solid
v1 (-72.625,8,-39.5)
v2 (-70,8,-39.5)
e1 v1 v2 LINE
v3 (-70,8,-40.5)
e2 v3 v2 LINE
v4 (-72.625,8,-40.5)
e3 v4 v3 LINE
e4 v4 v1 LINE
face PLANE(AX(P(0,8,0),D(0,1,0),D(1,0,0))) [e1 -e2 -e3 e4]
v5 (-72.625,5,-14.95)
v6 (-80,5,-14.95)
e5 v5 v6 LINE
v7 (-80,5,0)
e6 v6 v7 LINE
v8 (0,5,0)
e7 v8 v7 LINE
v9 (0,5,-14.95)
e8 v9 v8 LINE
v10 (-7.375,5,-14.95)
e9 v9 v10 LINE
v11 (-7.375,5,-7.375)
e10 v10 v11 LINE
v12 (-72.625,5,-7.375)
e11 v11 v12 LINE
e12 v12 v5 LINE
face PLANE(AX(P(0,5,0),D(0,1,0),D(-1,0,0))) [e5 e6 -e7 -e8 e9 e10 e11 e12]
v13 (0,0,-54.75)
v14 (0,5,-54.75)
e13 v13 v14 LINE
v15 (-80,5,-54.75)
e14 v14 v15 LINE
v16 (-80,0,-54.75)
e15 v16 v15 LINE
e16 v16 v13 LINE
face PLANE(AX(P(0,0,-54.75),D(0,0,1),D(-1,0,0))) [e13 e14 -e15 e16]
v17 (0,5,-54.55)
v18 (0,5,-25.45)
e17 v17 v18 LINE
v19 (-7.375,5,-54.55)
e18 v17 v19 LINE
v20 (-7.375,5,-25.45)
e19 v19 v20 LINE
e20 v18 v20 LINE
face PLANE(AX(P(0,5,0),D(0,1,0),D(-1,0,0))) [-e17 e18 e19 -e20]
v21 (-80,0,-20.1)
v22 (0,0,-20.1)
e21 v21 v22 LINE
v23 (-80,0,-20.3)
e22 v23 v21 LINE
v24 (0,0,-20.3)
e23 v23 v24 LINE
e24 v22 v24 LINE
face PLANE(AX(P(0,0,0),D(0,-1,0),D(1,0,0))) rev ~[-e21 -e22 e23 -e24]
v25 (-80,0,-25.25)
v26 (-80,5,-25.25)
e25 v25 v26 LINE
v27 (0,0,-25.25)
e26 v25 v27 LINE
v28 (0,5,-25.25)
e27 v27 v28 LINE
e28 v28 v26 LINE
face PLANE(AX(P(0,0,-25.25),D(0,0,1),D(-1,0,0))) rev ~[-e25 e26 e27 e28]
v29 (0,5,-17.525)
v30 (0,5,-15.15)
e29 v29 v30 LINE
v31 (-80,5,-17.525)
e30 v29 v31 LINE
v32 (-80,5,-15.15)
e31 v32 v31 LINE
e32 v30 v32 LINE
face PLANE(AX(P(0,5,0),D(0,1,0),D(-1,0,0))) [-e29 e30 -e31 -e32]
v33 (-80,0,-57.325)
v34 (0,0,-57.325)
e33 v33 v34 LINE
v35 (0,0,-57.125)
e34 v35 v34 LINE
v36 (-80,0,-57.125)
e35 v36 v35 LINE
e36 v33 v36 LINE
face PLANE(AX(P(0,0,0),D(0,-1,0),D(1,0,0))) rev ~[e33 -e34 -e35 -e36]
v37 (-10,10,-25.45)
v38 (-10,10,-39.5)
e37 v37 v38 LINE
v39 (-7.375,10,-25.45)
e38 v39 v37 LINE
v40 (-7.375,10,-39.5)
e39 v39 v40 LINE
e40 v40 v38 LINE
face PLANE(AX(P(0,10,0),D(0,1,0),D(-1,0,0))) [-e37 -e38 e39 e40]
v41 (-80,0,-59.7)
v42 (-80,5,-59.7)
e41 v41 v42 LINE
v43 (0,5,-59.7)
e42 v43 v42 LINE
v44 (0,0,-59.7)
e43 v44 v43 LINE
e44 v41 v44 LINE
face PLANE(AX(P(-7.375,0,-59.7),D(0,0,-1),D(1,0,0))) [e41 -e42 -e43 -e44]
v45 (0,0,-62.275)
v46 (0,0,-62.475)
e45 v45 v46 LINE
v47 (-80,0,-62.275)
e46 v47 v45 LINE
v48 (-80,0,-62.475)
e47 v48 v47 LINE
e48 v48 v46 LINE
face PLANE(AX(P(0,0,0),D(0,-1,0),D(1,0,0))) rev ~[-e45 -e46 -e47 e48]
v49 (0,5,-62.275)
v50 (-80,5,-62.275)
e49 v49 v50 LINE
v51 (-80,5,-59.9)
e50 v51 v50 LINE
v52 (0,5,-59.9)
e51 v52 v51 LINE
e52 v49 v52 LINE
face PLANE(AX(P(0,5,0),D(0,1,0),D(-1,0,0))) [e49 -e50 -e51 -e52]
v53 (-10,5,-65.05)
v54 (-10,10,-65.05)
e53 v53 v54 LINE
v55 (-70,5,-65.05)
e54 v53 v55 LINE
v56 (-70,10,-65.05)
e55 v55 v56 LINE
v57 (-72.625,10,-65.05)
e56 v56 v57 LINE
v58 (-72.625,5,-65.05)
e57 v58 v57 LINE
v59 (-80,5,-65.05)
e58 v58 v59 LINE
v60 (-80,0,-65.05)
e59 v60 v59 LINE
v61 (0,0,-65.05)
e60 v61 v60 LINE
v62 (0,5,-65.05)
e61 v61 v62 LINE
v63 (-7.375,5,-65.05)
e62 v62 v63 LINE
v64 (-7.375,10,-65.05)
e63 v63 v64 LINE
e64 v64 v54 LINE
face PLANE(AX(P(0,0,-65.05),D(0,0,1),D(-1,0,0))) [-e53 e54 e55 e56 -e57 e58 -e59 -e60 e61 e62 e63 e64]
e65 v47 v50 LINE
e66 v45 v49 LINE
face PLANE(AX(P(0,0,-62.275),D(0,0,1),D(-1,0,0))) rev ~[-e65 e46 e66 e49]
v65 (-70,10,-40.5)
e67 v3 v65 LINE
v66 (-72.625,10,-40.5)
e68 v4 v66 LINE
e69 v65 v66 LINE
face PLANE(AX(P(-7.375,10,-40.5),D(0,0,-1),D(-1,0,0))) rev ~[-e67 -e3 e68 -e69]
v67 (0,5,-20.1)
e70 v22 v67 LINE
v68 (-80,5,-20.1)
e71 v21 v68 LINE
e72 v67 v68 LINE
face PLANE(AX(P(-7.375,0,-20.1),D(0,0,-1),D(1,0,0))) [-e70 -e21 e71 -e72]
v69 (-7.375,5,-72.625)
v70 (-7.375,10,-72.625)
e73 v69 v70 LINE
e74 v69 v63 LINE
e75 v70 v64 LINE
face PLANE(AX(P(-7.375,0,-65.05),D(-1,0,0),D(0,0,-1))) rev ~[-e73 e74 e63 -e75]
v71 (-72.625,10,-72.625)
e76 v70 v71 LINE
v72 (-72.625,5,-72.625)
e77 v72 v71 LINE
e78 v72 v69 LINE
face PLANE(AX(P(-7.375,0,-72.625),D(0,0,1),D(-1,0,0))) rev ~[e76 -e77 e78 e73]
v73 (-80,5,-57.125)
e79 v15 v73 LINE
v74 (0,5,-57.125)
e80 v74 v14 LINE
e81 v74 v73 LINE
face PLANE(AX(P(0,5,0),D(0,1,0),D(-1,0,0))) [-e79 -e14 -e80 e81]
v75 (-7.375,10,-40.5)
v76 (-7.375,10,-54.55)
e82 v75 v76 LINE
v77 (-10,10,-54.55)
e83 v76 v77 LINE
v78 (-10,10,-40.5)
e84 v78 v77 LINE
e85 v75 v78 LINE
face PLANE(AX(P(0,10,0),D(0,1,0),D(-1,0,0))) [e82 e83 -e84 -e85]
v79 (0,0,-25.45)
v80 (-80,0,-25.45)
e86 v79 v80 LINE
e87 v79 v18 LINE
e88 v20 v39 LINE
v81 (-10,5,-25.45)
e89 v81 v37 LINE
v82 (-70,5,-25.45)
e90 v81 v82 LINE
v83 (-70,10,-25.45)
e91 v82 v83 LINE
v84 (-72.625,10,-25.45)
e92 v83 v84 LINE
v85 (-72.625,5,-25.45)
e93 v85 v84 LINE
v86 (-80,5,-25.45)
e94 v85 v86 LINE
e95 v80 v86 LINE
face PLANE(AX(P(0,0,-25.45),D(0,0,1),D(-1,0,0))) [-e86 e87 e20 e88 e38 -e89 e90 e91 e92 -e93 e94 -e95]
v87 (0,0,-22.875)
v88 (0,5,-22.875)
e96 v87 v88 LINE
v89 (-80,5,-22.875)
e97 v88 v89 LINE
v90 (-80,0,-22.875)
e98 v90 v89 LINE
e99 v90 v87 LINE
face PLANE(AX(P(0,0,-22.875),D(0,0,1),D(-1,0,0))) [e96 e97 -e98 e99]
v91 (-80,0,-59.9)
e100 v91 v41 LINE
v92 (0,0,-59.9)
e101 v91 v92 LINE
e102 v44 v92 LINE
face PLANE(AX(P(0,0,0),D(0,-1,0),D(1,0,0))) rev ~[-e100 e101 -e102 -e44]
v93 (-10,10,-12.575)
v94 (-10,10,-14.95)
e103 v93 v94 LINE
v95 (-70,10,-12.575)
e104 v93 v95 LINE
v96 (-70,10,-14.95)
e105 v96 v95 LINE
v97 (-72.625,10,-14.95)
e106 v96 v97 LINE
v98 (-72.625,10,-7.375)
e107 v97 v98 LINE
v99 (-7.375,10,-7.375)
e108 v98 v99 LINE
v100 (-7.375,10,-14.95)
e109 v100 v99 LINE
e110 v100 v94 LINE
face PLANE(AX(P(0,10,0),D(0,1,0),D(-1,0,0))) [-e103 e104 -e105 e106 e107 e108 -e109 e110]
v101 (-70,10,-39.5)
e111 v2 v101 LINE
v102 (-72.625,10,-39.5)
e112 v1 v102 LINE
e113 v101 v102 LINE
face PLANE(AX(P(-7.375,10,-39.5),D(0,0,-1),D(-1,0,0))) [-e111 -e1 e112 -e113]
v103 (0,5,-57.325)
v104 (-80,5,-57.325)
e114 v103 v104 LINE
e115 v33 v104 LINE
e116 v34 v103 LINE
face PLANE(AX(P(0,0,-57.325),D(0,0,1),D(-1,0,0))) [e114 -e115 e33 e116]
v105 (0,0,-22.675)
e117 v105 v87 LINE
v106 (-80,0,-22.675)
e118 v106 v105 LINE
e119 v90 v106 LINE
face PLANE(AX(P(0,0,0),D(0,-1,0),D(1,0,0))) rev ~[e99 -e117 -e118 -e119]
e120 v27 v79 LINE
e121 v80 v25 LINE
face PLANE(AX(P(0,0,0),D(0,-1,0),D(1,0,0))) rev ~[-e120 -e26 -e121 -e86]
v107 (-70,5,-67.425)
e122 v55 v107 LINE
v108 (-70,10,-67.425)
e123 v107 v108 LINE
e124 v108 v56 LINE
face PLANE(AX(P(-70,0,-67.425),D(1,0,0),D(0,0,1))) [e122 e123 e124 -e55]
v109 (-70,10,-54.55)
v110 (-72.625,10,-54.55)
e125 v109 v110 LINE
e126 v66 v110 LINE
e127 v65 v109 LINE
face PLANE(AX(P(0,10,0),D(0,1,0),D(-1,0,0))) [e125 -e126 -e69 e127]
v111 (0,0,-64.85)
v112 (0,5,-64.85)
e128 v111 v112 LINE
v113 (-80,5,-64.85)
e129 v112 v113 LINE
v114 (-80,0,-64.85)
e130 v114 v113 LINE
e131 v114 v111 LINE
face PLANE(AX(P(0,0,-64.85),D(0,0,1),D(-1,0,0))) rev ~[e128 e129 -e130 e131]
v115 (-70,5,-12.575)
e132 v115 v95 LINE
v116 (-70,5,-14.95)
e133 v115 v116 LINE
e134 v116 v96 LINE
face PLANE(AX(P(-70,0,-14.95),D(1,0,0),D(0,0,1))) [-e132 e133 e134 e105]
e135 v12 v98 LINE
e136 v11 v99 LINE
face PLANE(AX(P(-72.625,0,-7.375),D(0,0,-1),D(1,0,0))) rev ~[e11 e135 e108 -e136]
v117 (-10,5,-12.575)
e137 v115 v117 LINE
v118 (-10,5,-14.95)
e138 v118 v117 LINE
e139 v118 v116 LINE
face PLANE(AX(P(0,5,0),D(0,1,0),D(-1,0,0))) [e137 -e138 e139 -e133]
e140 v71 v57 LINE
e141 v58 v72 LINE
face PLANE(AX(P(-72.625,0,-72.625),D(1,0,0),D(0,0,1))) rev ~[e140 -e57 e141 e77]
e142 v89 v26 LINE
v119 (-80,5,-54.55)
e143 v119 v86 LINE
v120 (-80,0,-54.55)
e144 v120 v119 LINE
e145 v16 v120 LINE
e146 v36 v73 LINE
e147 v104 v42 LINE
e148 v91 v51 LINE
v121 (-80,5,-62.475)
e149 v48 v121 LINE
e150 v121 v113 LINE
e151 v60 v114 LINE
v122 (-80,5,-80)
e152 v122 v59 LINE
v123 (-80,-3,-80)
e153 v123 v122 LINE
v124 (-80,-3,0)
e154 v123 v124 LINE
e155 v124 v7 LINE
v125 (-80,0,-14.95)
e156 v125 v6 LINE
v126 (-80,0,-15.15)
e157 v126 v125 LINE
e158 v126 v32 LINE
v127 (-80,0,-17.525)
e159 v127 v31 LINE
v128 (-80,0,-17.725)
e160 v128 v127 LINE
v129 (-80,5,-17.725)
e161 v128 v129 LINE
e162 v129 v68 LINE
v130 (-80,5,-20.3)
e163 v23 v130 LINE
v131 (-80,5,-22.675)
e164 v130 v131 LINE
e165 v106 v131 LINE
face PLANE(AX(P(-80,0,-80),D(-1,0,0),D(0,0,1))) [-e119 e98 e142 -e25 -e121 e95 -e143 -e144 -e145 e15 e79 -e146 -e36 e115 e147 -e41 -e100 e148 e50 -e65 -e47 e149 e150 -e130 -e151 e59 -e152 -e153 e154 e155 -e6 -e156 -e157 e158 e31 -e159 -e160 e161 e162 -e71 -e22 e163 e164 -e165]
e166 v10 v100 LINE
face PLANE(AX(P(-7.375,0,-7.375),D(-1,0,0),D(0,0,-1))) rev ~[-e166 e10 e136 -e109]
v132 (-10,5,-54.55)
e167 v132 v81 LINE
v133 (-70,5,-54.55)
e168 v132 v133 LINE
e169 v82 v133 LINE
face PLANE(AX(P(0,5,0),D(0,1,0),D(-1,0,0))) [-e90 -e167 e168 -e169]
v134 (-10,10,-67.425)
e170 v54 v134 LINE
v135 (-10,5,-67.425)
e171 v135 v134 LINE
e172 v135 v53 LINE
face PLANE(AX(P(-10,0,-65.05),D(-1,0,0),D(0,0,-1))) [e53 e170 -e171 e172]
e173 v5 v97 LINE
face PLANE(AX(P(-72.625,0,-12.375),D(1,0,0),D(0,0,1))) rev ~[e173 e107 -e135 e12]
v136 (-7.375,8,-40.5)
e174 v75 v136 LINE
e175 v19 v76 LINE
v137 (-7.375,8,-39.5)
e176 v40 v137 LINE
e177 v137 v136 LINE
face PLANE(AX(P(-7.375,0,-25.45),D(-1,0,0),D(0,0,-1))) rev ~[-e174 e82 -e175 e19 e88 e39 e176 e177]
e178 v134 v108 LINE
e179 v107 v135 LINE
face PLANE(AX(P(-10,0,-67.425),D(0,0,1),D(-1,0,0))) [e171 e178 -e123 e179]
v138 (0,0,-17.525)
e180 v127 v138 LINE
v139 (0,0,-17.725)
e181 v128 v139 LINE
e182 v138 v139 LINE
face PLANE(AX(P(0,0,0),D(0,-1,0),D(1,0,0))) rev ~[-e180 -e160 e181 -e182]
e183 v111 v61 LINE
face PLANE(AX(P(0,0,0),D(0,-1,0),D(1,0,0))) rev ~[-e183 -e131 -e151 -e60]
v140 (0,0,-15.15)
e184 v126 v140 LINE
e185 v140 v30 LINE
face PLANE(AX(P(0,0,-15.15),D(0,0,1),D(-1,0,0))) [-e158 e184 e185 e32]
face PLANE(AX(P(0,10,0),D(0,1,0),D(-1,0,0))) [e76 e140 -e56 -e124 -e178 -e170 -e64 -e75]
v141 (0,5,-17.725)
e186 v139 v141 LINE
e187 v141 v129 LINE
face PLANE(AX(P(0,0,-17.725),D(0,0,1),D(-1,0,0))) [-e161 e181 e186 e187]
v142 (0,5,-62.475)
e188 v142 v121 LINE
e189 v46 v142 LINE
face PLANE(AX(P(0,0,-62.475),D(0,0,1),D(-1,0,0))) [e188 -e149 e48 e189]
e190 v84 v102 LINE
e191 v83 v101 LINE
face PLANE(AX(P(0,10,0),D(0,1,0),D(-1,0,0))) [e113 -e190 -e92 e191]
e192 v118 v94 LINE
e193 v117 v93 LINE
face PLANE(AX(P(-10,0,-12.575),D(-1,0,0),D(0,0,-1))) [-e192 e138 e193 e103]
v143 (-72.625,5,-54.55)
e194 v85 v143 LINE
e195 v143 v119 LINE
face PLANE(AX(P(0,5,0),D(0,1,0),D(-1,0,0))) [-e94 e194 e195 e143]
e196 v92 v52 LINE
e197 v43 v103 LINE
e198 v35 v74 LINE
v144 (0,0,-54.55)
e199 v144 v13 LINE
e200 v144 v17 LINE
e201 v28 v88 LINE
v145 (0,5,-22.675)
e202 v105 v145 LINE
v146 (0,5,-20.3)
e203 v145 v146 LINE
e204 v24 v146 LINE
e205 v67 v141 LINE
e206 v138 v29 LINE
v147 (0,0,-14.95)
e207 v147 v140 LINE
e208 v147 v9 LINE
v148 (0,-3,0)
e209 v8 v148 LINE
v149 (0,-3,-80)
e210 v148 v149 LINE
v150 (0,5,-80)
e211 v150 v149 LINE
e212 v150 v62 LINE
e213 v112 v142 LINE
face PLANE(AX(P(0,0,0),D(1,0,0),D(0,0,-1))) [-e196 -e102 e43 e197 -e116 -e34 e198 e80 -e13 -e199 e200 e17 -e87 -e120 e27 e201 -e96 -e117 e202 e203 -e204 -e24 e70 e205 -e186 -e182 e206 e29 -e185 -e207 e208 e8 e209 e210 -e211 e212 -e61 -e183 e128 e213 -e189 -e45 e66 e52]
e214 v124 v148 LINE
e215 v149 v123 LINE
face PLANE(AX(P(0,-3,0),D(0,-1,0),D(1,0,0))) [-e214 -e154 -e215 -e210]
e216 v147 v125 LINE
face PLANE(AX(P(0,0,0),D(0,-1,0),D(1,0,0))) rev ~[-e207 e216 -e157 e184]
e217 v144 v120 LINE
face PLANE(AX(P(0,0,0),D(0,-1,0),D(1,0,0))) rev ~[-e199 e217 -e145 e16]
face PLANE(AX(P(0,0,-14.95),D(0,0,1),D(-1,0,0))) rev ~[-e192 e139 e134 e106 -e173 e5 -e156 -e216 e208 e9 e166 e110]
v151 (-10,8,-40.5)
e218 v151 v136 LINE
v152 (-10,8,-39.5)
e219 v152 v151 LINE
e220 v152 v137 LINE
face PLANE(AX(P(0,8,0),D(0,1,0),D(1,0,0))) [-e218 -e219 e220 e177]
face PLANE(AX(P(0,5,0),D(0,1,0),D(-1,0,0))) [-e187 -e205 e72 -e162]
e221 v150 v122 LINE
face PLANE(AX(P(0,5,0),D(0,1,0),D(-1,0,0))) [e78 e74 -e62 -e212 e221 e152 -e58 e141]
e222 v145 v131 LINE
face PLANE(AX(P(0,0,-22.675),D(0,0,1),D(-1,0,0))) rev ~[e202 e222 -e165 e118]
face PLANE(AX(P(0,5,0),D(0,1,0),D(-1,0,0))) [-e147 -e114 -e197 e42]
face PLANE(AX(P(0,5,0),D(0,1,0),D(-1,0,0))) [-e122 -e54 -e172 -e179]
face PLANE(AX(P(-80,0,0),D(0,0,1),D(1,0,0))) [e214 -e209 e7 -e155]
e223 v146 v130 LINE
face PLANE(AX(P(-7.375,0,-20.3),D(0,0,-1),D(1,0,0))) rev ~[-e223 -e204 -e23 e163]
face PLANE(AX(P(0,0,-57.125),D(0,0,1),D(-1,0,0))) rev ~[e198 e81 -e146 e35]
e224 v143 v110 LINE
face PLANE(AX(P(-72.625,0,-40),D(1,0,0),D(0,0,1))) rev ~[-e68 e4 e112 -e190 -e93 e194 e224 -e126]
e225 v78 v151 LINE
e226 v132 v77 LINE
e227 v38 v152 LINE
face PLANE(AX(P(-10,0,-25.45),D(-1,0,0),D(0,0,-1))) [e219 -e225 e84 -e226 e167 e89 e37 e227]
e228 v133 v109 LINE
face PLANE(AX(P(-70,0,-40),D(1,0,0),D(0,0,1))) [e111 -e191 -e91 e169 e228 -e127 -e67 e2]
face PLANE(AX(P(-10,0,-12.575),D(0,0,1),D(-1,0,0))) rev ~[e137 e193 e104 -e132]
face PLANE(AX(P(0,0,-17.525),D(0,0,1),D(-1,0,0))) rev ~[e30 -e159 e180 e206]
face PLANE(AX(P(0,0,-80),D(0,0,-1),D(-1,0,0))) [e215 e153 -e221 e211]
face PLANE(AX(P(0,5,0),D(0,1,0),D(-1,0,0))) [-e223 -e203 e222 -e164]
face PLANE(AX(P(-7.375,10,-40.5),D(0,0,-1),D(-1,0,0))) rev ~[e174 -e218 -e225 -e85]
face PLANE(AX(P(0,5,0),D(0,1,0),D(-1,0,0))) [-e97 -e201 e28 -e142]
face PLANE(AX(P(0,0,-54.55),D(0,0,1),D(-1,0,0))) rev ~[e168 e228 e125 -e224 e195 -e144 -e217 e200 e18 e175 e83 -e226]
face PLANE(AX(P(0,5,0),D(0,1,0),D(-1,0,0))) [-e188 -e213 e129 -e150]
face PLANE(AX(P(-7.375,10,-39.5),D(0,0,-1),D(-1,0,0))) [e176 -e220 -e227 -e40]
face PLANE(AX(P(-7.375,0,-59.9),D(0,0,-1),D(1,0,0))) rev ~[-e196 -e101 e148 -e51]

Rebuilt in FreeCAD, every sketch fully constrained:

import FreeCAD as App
import Part
import Sketcher
Q = App.Units.Quantity

doc = App.newDocument("Part")
body = doc.addObject("PartDesign::Body", "Body")
body.AllowCompound = True

# Sketch on XZ plane
sketch1 = body.newObject("Sketcher::SketchObject", "Sketch")
sketch1.AttachmentSupport = (doc.getObject("XZ_Plane"), [""])
sketch1.MapMode = "FlatFace"
sketch1.addGeometry(Part.LineSegment(App.Vector(0, 0, 0), App.Vector(0, -14.95, 0)), False)
sketch1.addGeometry(Part.LineSegment(App.Vector(0, -14.95, 0), App.Vector(-80, -14.95, 0)), False)
sketch1.addGeometry(Part.LineSegment(App.Vector(-80, -14.95, 0), App.Vector(-80, 0, 0)), False)
sketch1.addGeometry(Part.LineSegment(App.Vector(-80, 0, 0), App.Vector(0, 0, 0)), False)
sketch1.addGeometry(Part.LineSegment(App.Vector(0, -15.15, 0), App.Vector(0, -17.525, 0)), False)
sketch1.addGeometry(Part.LineSegment(App.Vector(0, -17.525, 0), App.Vector(-80, -17.525, 0)), False)
sketch1.addGeometry(Part.LineSegment(App.Vector(-80, -17.525, 0), App.Vector(-80, -15.15, 0)), False)
sketch1.addGeometry(Part.LineSegment(App.Vector(-80, -15.15, 0), App.Vector(0, -15.15, 0)), False)
sketch1.addGeometry(Part.LineSegment(App.Vector(0, -17.725, 0), App.Vector(0, -20.1, 0)), False)
sketch1.addGeometry(Part.LineSegment(App.Vector(0, -20.1, 0), App.Vector(-80, -20.1, 0)), False)
sketch1.addGeometry(Part.LineSegment(App.Vector(-80, -20.1, 0), App.Vector(-80, -17.725, 0)), False)
sketch1.addGeometry(Part.LineSegment(App.Vector(-80, -17.725, 0), App.Vector(0, -17.725, 0)), False)
sketch1.addGeometry(Part.LineSegment(App.Vector(0, -20.3, 0), App.Vector(0, -22.675, 0)), False)
sketch1.addGeometry(Part.LineSegment(App.Vector(0, -22.675, 0), App.Vector(-80, -22.675, 0)), False)
sketch1.addGeometry(Part.LineSegment(App.Vector(-80, -22.675, 0), App.Vector(-80, -20.3, 0)), False)
sketch1.addGeometry(Part.LineSegment(App.Vector(-80, -20.3, 0), App.Vector(0, -20.3, 0)), False)
sketch1.addGeometry(Part.LineSegment(App.Vector(0, -22.875, 0), App.Vector(0, -25.25, 0)), False)
sketch1.addGeometry(Part.LineSegment(App.Vector(0, -25.25, 0), App.Vector(-80, -25.25, 0)), False)
sketch1.addGeometry(Part.LineSegment(App.Vector(-80, -25.25, 0), App.Vector(-80, -22.875, 0)), False)
sketch1.addGeometry(Part.LineSegment(App.Vector(-80, -22.875, 0), App.Vector(0, -22.875, 0)), False)
sketch1.addGeometry(Part.LineSegment(App.Vector(0, -25.45, 0), App.Vector(0, -54.55, 0)), False)
sketch1.addGeometry(Part.LineSegment(App.Vector(0, -54.55, 0), App.Vector(-80, -54.55, 0)), False)
sketch1.addGeometry(Part.LineSegment(App.Vector(-80, -54.55, 0), App.Vector(-80, -25.45, 0)), False)
sketch1.addGeometry(Part.LineSegment(App.Vector(-80, -25.45, 0), App.Vector(0, -25.45, 0)), False)
sketch1.addGeometry(Part.LineSegment(App.Vector(0, -54.75, 0), App.Vector(0, -57.125, 0)), False)
sketch1.addGeometry(Part.LineSegment(App.Vector(0, -57.125, 0), App.Vector(-80, -57.125, 0)), False)
sketch1.addGeometry(Part.LineSegment(App.Vector(-80, -57.125, 0), App.Vector(-80, -54.75, 0)), False)
sketch1.addGeometry(Part.LineSegment(App.Vector(-80, -54.75, 0), App.Vector(0, -54.75, 0)), False)
sketch1.addGeometry(Part.LineSegment(App.Vector(0, -57.325, 0), App.Vector(0, -59.7, 0)), False)
sketch1.addGeometry(Part.LineSegment(App.Vector(0, -59.7, 0), App.Vector(-80, -59.7, 0)), False)
sketch1.addGeometry(Part.LineSegment(App.Vector(-80, -59.7, 0), App.Vector(-80, -57.325, 0)), False)
sketch1.addGeometry(Part.LineSegment(App.Vector(-80, -57.325, 0), App.Vector(0, -57.325, 0)), False)
sketch1.addGeometry(Part.LineSegment(App.Vector(0, -59.9, 0), App.Vector(0, -62.275, 0)), False)
sketch1.addGeometry(Part.LineSegment(App.Vector(0, -62.275, 0), App.Vector(-80, -62.275, 0)), False)
sketch1.addGeometry(Part.LineSegment(App.Vector(-80, -62.275, 0), App.Vector(-80, -59.9, 0)), False)
sketch1.addGeometry(Part.LineSegment(App.Vector(-80, -59.9, 0), App.Vector(0, -59.9, 0)), False)
sketch1.addGeometry(Part.LineSegment(App.Vector(0, -62.475, 0), App.Vector(0, -64.85, 0)), False)
sketch1.addGeometry(Part.LineSegment(App.Vector(0, -64.85, 0), App.Vector(-80, -64.85, 0)), False)
sketch1.addGeometry(Part.LineSegment(App.Vector(-80, -64.85, 0), App.Vector(-80, -62.475, 0)), False)
sketch1.addGeometry(Part.LineSegment(App.Vector(-80, -62.475, 0), App.Vector(0, -62.475, 0)), False)
sketch1.addGeometry(Part.LineSegment(App.Vector(0, -65.05, 0), App.Vector(0, -80, 0)), False)
sketch1.addGeometry(Part.LineSegment(App.Vector(0, -80, 0), App.Vector(-80, -80, 0)), False)
sketch1.addGeometry(Part.LineSegment(App.Vector(-80, -80, 0), App.Vector(-80, -65.05, 0)), False)
sketch1.addGeometry(Part.LineSegment(App.Vector(-80, -65.05, 0), App.Vector(0, -65.05, 0)), False)
sketch1.addConstraint(Sketcher.Constraint("Coincident", 0, 2, 1, 1))
sketch1.addConstraint(Sketcher.Constraint("Coincident", 1, 2, 2, 1))
sketch1.addConstraint(Sketcher.Constraint("Coincident", 2, 2, 3, 1))
sketch1.addConstraint(Sketcher.Constraint("Coincident", 3, 2, 0, 1))
sketch1.addConstraint(Sketcher.Constraint("Coincident", 4, 2, 5, 1))
sketch1.addConstraint(Sketcher.Constraint("Coincident", 5, 2, 6, 1))
sketch1.addConstraint(Sketcher.Constraint("Coincident", 6, 2, 7, 1))
sketch1.addConstraint(Sketcher.Constraint("Coincident", 7, 2, 4, 1))
sketch1.addConstraint(Sketcher.Constraint("Coincident", 8, 2, 9, 1))
sketch1.addConstraint(Sketcher.Constraint("Coincident", 9, 2, 10, 1))
sketch1.addConstraint(Sketcher.Constraint("Coincident", 10, 2, 11, 1))
sketch1.addConstraint(Sketcher.Constraint("Coincident", 11, 2, 8, 1))
sketch1.addConstraint(Sketcher.Constraint("Coincident", 12, 2, 13, 1))
sketch1.addConstraint(Sketcher.Constraint("Coincident", 13, 2, 14, 1))
sketch1.addConstraint(Sketcher.Constraint("Coincident", 14, 2, 15, 1))
sketch1.addConstraint(Sketcher.Constraint("Coincident", 15, 2, 12, 1))
sketch1.addConstraint(Sketcher.Constraint("Coincident", 16, 2, 17, 1))
sketch1.addConstraint(Sketcher.Constraint("Coincident", 17, 2, 18, 1))
sketch1.addConstraint(Sketcher.Constraint("Coincident", 18, 2, 19, 1))
sketch1.addConstraint(Sketcher.Constraint("Coincident", 19, 2, 16, 1))
sketch1.addConstraint(Sketcher.Constraint("Coincident", 20, 2, 21, 1))
sketch1.addConstraint(Sketcher.Constraint("Coincident", 21, 2, 22, 1))
sketch1.addConstraint(Sketcher.Constraint("Coincident", 22, 2, 23, 1))
sketch1.addConstraint(Sketcher.Constraint("Coincident", 23, 2, 20, 1))
sketch1.addConstraint(Sketcher.Constraint("Coincident", 24, 2, 25, 1))
sketch1.addConstraint(Sketcher.Constraint("Coincident", 25, 2, 26, 1))
sketch1.addConstraint(Sketcher.Constraint("Coincident", 26, 2, 27, 1))
sketch1.addConstraint(Sketcher.Constraint("Coincident", 27, 2, 24, 1))
sketch1.addConstraint(Sketcher.Constraint("Coincident", 28, 2, 29, 1))
sketch1.addConstraint(Sketcher.Constraint("Coincident", 29, 2, 30, 1))
sketch1.addConstraint(Sketcher.Constraint("Coincident", 30, 2, 31, 1))
sketch1.addConstraint(Sketcher.Constraint("Coincident", 31, 2, 28, 1))
sketch1.addConstraint(Sketcher.Constraint("Coincident", 32, 2, 33, 1))
sketch1.addConstraint(Sketcher.Constraint("Coincident", 33, 2, 34, 1))
sketch1.addConstraint(Sketcher.Constraint("Coincident", 34, 2, 35, 1))
sketch1.addConstraint(Sketcher.Constraint("Coincident", 35, 2, 32, 1))
sketch1.addConstraint(Sketcher.Constraint("Coincident", 36, 2, 37, 1))
sketch1.addConstraint(Sketcher.Constraint("Coincident", 37, 2, 38, 1))
sketch1.addConstraint(Sketcher.Constraint("Coincident", 38, 2, 39, 1))
sketch1.addConstraint(Sketcher.Constraint("Coincident", 39, 2, 36, 1))
sketch1.addConstraint(Sketcher.Constraint("Coincident", 40, 2, 41, 1))
sketch1.addConstraint(Sketcher.Constraint("Coincident", 41, 2, 42, 1))
sketch1.addConstraint(Sketcher.Constraint("Coincident", 42, 2, 43, 1))
sketch1.addConstraint(Sketcher.Constraint("Coincident", 43, 2, 40, 1))
sketch1.addConstraint(Sketcher.Constraint("Vertical", 0))
sketch1.addConstraint(Sketcher.Constraint("Horizontal", 1))
sketch1.addConstraint(Sketcher.Constraint("Vertical", 2))
sketch1.addConstraint(Sketcher.Constraint("Horizontal", 3))
sketch1.addConstraint(Sketcher.Constraint("Vertical", 4))
sketch1.addConstraint(Sketcher.Constraint("Horizontal", 5))
sketch1.addConstraint(Sketcher.Constraint("Vertical", 6))
sketch1.addConstraint(Sketcher.Constraint("Horizontal", 7))
sketch1.addConstraint(Sketcher.Constraint("Vertical", 8))
sketch1.addConstraint(Sketcher.Constraint("Horizontal", 9))
sketch1.addConstraint(Sketcher.Constraint("Vertical", 10))
sketch1.addConstraint(Sketcher.Constraint("Horizontal", 11))
sketch1.addConstraint(Sketcher.Constraint("Vertical", 12))
sketch1.addConstraint(Sketcher.Constraint("Horizontal", 13))
sketch1.addConstraint(Sketcher.Constraint("Vertical", 14))
sketch1.addConstraint(Sketcher.Constraint("Horizontal", 15))
sketch1.addConstraint(Sketcher.Constraint("Vertical", 16))
sketch1.addConstraint(Sketcher.Constraint("Horizontal", 17))
sketch1.addConstraint(Sketcher.Constraint("Vertical", 18))
sketch1.addConstraint(Sketcher.Constraint("Horizontal", 19))
sketch1.addConstraint(Sketcher.Constraint("Vertical", 20))
sketch1.addConstraint(Sketcher.Constraint("Horizontal", 21))
sketch1.addConstraint(Sketcher.Constraint("Vertical", 22))
sketch1.addConstraint(Sketcher.Constraint("Horizontal", 23))
sketch1.addConstraint(Sketcher.Constraint("Vertical", 24))
sketch1.addConstraint(Sketcher.Constraint("Horizontal", 25))
sketch1.addConstraint(Sketcher.Constraint("Vertical", 26))
sketch1.addConstraint(Sketcher.Constraint("Horizontal", 27))
sketch1.addConstraint(Sketcher.Constraint("Vertical", 28))
sketch1.addConstraint(Sketcher.Constraint("Horizontal", 29))
sketch1.addConstraint(Sketcher.Constraint("Vertical", 30))
sketch1.addConstraint(Sketcher.Constraint("Horizontal", 31))
sketch1.addConstraint(Sketcher.Constraint("Vertical", 32))
sketch1.addConstraint(Sketcher.Constraint("Horizontal", 33))
sketch1.addConstraint(Sketcher.Constraint("Vertical", 34))
sketch1.addConstraint(Sketcher.Constraint("Horizontal", 35))
sketch1.addConstraint(Sketcher.Constraint("Vertical", 36))
sketch1.addConstraint(Sketcher.Constraint("Horizontal", 37))
sketch1.addConstraint(Sketcher.Constraint("Vertical", 38))
sketch1.addConstraint(Sketcher.Constraint("Horizontal", 39))
sketch1.addConstraint(Sketcher.Constraint("Vertical", 40))
sketch1.addConstraint(Sketcher.Constraint("Horizontal", 41))
sketch1.addConstraint(Sketcher.Constraint("Vertical", 42))
sketch1.addConstraint(Sketcher.Constraint("Horizontal", 43))
sketch1.addConstraint(Sketcher.Constraint("Coincident", 3, 2, -1, 1))
sketch1.addConstraint(Sketcher.Constraint("PointOnObject", 4, 2, -2))
sketch1.addConstraint(Sketcher.Constraint("PointOnObject", 8, 2, -2))
sketch1.addConstraint(Sketcher.Constraint("PointOnObject", 12, 2, -2))
sketch1.addConstraint(Sketcher.Constraint("PointOnObject", 16, 2, -2))
sketch1.addConstraint(Sketcher.Constraint("PointOnObject", 20, 2, -2))
sketch1.addConstraint(Sketcher.Constraint("PointOnObject", 24, 2, -2))
sketch1.addConstraint(Sketcher.Constraint("PointOnObject", 28, 2, -2))
sketch1.addConstraint(Sketcher.Constraint("PointOnObject", 32, 2, -2))
sketch1.addConstraint(Sketcher.Constraint("PointOnObject", 36, 2, -2))
sketch1.addConstraint(Sketcher.Constraint("PointOnObject", 40, 2, -2))
sketch1.addConstraint(Sketcher.Constraint("Vertical", 2, 2, 5, 2))
sketch1.addConstraint(Sketcher.Constraint("Vertical", 6, 2, 9, 2))
sketch1.addConstraint(Sketcher.Constraint("Vertical", 10, 2, 13, 2))
sketch1.addConstraint(Sketcher.Constraint("Vertical", 14, 2, 17, 2))
sketch1.addConstraint(Sketcher.Constraint("Vertical", 18, 2, 21, 2))
sketch1.addConstraint(Sketcher.Constraint("Vertical", 22, 2, 25, 2))
sketch1.addConstraint(Sketcher.Constraint("Vertical", 26, 2, 29, 2))
sketch1.addConstraint(Sketcher.Constraint("Vertical", 30, 2, 33, 2))
sketch1.addConstraint(Sketcher.Constraint("Vertical", 34, 2, 37, 2))
sketch1.addConstraint(Sketcher.Constraint("Vertical", 38, 2, 41, 2))
sketch1.addConstraint(Sketcher.Constraint("Equal", 6, 8))
sketch1.addConstraint(Sketcher.Constraint("Equal", 10, 12))
sketch1.addConstraint(Sketcher.Constraint("Equal", 14, 16))
sketch1.addConstraint(Sketcher.Constraint("Equal", 18, 24))
sketch1.addConstraint(Sketcher.Constraint("Equal", 26, 28))
sketch1.addConstraint(Sketcher.Constraint("Equal", 30, 32))
sketch1.addConstraint(Sketcher.Constraint("Equal", 34, 36))
sketch1.addConstraint(Sketcher.Constraint("Equal", 2, 40))
sketch1.addConstraint(Sketcher.Constraint("DistanceX", 1, 2, 1, 1, Q("80 mm")))
sketch1.addConstraint(Sketcher.Constraint("DistanceY", 40, 2, -1, 1, Q("80 mm")))
sketch1.addConstraint(Sketcher.Constraint("DistanceY", 6, 2, 1, 2, Q("0.2 mm")))
sketch1.addConstraint(Sketcher.Constraint("DistanceY", 10, 2, 5, 2, Q("0.2 mm")))
sketch1.addConstraint(Sketcher.Constraint("DistanceY", 14, 2, 9, 2, Q("0.2 mm")))
sketch1.addConstraint(Sketcher.Constraint("DistanceY", 18, 2, 13, 2, Q("0.2 mm")))
sketch1.addConstraint(Sketcher.Constraint("DistanceY", 22, 2, 17, 2, Q("0.2 mm")))
sketch1.addConstraint(Sketcher.Constraint("DistanceY", 26, 2, 21, 2, Q("0.2 mm")))
sketch1.addConstraint(Sketcher.Constraint("DistanceY", 30, 2, 25, 2, Q("0.2 mm")))
sketch1.addConstraint(Sketcher.Constraint("DistanceY", 34, 2, 29, 2, Q("0.2 mm")))
sketch1.addConstraint(Sketcher.Constraint("DistanceY", 38, 2, 33, 2, Q("0.2 mm")))
sketch1.addConstraint(Sketcher.Constraint("DistanceY", 42, 2, 37, 2, Q("0.2 mm")))
sketch1.addConstraint(Sketcher.Constraint("DistanceY", 4, 2, 4, 1, Q("2.375 mm")))
sketch1.addConstraint(Sketcher.Constraint("DistanceY", 20, 2, 20, 1, Q("29.1 mm")))
pad1 = body.newObject("PartDesign::Pad", "Pad")
pad1.Profile = sketch1
pad1.Length = 5
pad1.Reversed = True

# Sketch on XZ plane
sketch2 = body.newObject("Sketcher::SketchObject", "Sketch001")
sketch2.AttachmentSupport = (doc.getObject("XZ_Plane"), [""])
sketch2.MapMode = "FlatFace"
sketch2.addGeometry(Part.LineSegment(App.Vector(-80, -80, 0), App.Vector(0, -80, 0)), False)
sketch2.addGeometry(Part.LineSegment(App.Vector(0, -80, 0), App.Vector(0, 0, 0)), False)
sketch2.addGeometry(Part.LineSegment(App.Vector(0, 0, 0), App.Vector(-80, 0, 0)), False)
sketch2.addGeometry(Part.LineSegment(App.Vector(-80, 0, 0), App.Vector(-80, -80, 0)), False)
sketch2.addConstraint(Sketcher.Constraint("Coincident", 0, 2, 1, 1))
sketch2.addConstraint(Sketcher.Constraint("Coincident", 1, 2, 2, 1))
sketch2.addConstraint(Sketcher.Constraint("Coincident", 2, 2, 3, 1))
sketch2.addConstraint(Sketcher.Constraint("Coincident", 3, 2, 0, 1))
sketch2.addConstraint(Sketcher.Constraint("Horizontal", 0))
sketch2.addConstraint(Sketcher.Constraint("Vertical", 1))
sketch2.addConstraint(Sketcher.Constraint("Horizontal", 2))
sketch2.addConstraint(Sketcher.Constraint("Vertical", 3))
sketch2.addConstraint(Sketcher.Constraint("Coincident", 1, 2, -1, 1))
sketch2.addConstraint(Sketcher.Constraint("Equal", 2, 1))
sketch2.addConstraint(Sketcher.Constraint("DistanceX", 0, 1, 0, 2, Q("80 mm")))
pad2 = body.newObject("PartDesign::Pad", "Pad001")
pad2.Profile = sketch2
pad2.Length = 3

# Sketch on XZ plane
sketch3 = body.newObject("Sketcher::SketchObject", "Sketch002")
sketch3.AttachmentSupport = (doc.getObject("XZ_Plane"), [""])
sketch3.MapMode = "FlatFace"
sketch3.addGeometry(Part.LineSegment(App.Vector(-7.375, -7.375, 0), App.Vector(-7.375, -14.95, 0)), False)
sketch3.addGeometry(Part.LineSegment(App.Vector(-7.375, -14.95, 0), App.Vector(-10, -14.95, 0)), False)
sketch3.addGeometry(Part.LineSegment(App.Vector(-10, -14.95, 0), App.Vector(-10, -12.575, 0)), False)
sketch3.addGeometry(Part.LineSegment(App.Vector(-10, -12.575, 0), App.Vector(-70, -12.575, 0)), False)
sketch3.addGeometry(Part.LineSegment(App.Vector(-70, -12.575, 0), App.Vector(-70, -14.95, 0)), False)
sketch3.addGeometry(Part.LineSegment(App.Vector(-70, -14.95, 0), App.Vector(-72.625, -14.95, 0)), False)
sketch3.addGeometry(Part.LineSegment(App.Vector(-72.625, -14.95, 0), App.Vector(-72.625, -7.375, 0)), False)
sketch3.addGeometry(Part.LineSegment(App.Vector(-72.625, -7.375, 0), App.Vector(-7.375, -7.375, 0)), False)
sketch3.addGeometry(Part.LineSegment(App.Vector(-10, -25.45, 0), App.Vector(-7.375, -25.45, 0)), False)
sketch3.addGeometry(Part.LineSegment(App.Vector(-7.375, -25.45, 0), App.Vector(-7.375, -54.55, 0)), False)
sketch3.addGeometry(Part.LineSegment(App.Vector(-7.375, -54.55, 0), App.Vector(-10, -54.55, 0)), False)
sketch3.addGeometry(Part.LineSegment(App.Vector(-10, -54.55, 0), App.Vector(-10, -25.45, 0)), False)
sketch3.addGeometry(Part.LineSegment(App.Vector(-72.625, -25.45, 0), App.Vector(-70, -25.45, 0)), False)
sketch3.addGeometry(Part.LineSegment(App.Vector(-70, -25.45, 0), App.Vector(-70, -54.55, 0)), False)
sketch3.addGeometry(Part.LineSegment(App.Vector(-70, -54.55, 0), App.Vector(-72.625, -54.55, 0)), False)
sketch3.addGeometry(Part.LineSegment(App.Vector(-72.625, -54.55, 0), App.Vector(-72.625, -25.45, 0)), False)
sketch3.addGeometry(Part.LineSegment(App.Vector(-10, -65.05, 0), App.Vector(-7.375, -65.05, 0)), False)
sketch3.addGeometry(Part.LineSegment(App.Vector(-7.375, -65.05, 0), App.Vector(-7.375, -72.625, 0)), False)
sketch3.addGeometry(Part.LineSegment(App.Vector(-7.375, -72.625, 0), App.Vector(-72.625, -72.625, 0)), False)
sketch3.addGeometry(Part.LineSegment(App.Vector(-72.625, -72.625, 0), App.Vector(-72.625, -65.05, 0)), False)
sketch3.addGeometry(Part.LineSegment(App.Vector(-72.625, -65.05, 0), App.Vector(-70, -65.05, 0)), False)
sketch3.addGeometry(Part.LineSegment(App.Vector(-70, -65.05, 0), App.Vector(-70, -67.425, 0)), False)
sketch3.addGeometry(Part.LineSegment(App.Vector(-70, -67.425, 0), App.Vector(-10, -67.425, 0)), False)
sketch3.addGeometry(Part.LineSegment(App.Vector(-10, -67.425, 0), App.Vector(-10, -65.05, 0)), False)
sketch3.addConstraint(Sketcher.Constraint("Coincident", 0, 2, 1, 1))
sketch3.addConstraint(Sketcher.Constraint("Coincident", 1, 2, 2, 1))
sketch3.addConstraint(Sketcher.Constraint("Coincident", 2, 2, 3, 1))
sketch3.addConstraint(Sketcher.Constraint("Coincident", 3, 2, 4, 1))
sketch3.addConstraint(Sketcher.Constraint("Coincident", 4, 2, 5, 1))
sketch3.addConstraint(Sketcher.Constraint("Coincident", 5, 2, 6, 1))
sketch3.addConstraint(Sketcher.Constraint("Coincident", 6, 2, 7, 1))
sketch3.addConstraint(Sketcher.Constraint("Coincident", 7, 2, 0, 1))
sketch3.addConstraint(Sketcher.Constraint("Coincident", 8, 2, 9, 1))
sketch3.addConstraint(Sketcher.Constraint("Coincident", 9, 2, 10, 1))
sketch3.addConstraint(Sketcher.Constraint("Coincident", 10, 2, 11, 1))
sketch3.addConstraint(Sketcher.Constraint("Coincident", 11, 2, 8, 1))
sketch3.addConstraint(Sketcher.Constraint("Coincident", 12, 2, 13, 1))
sketch3.addConstraint(Sketcher.Constraint("Coincident", 13, 2, 14, 1))
sketch3.addConstraint(Sketcher.Constraint("Coincident", 14, 2, 15, 1))
sketch3.addConstraint(Sketcher.Constraint("Coincident", 15, 2, 12, 1))
sketch3.addConstraint(Sketcher.Constraint("Coincident", 16, 2, 17, 1))
sketch3.addConstraint(Sketcher.Constraint("Coincident", 17, 2, 18, 1))
sketch3.addConstraint(Sketcher.Constraint("Coincident", 18, 2, 19, 1))
sketch3.addConstraint(Sketcher.Constraint("Coincident", 19, 2, 20, 1))
sketch3.addConstraint(Sketcher.Constraint("Coincident", 20, 2, 21, 1))
sketch3.addConstraint(Sketcher.Constraint("Coincident", 21, 2, 22, 1))
sketch3.addConstraint(Sketcher.Constraint("Coincident", 22, 2, 23, 1))
sketch3.addConstraint(Sketcher.Constraint("Coincident", 23, 2, 16, 1))
sketch3.addConstraint(Sketcher.Constraint("Vertical", 0))
sketch3.addConstraint(Sketcher.Constraint("Horizontal", 1))
sketch3.addConstraint(Sketcher.Constraint("Vertical", 2))
sketch3.addConstraint(Sketcher.Constraint("Horizontal", 3))
sketch3.addConstraint(Sketcher.Constraint("Vertical", 4))
sketch3.addConstraint(Sketcher.Constraint("Horizontal", 5))
sketch3.addConstraint(Sketcher.Constraint("Vertical", 6))
sketch3.addConstraint(Sketcher.Constraint("Horizontal", 7))
sketch3.addConstraint(Sketcher.Constraint("Horizontal", 8))
sketch3.addConstraint(Sketcher.Constraint("Vertical", 9))
sketch3.addConstraint(Sketcher.Constraint("Horizontal", 10))
sketch3.addConstraint(Sketcher.Constraint("Vertical", 11))
sketch3.addConstraint(Sketcher.Constraint("Horizontal", 12))
sketch3.addConstraint(Sketcher.Constraint("Vertical", 13))
sketch3.addConstraint(Sketcher.Constraint("Horizontal", 14))
sketch3.addConstraint(Sketcher.Constraint("Vertical", 15))
sketch3.addConstraint(Sketcher.Constraint("Horizontal", 16))
sketch3.addConstraint(Sketcher.Constraint("Vertical", 17))
sketch3.addConstraint(Sketcher.Constraint("Horizontal", 18))
sketch3.addConstraint(Sketcher.Constraint("Vertical", 19))
sketch3.addConstraint(Sketcher.Constraint("Horizontal", 20))
sketch3.addConstraint(Sketcher.Constraint("Vertical", 21))
sketch3.addConstraint(Sketcher.Constraint("Horizontal", 22))
sketch3.addConstraint(Sketcher.Constraint("Vertical", 23))
sketch3.addConstraint(Sketcher.Constraint("Horizontal", 1, 2, 4, 2))
sketch3.addConstraint(Sketcher.Constraint("Horizontal", 11, 2, 12, 2))
sketch3.addConstraint(Sketcher.Constraint("Horizontal", 10, 2, 13, 2))
sketch3.addConstraint(Sketcher.Constraint("Horizontal", 16, 2, 19, 2))
sketch3.addConstraint(Sketcher.Constraint("Vertical", 7, 2, 8, 2))
sketch3.addConstraint(Sketcher.Constraint("Vertical", 2, 2, 10, 2))
sketch3.addConstraint(Sketcher.Constraint("Vertical", 4, 2, 12, 2))
sketch3.addConstraint(Sketcher.Constraint("Vertical", 6, 2, 14, 2))
sketch3.addConstraint(Sketcher.Constraint("Vertical", 9, 2, 16, 2))
sketch3.addConstraint(Sketcher.Constraint("Vertical", 15, 2, 18, 2))
sketch3.addConstraint(Sketcher.Constraint("Vertical", 13, 2, 20, 2))
sketch3.addConstraint(Sketcher.Constraint("Vertical", 11, 2, 22, 2))
sketch3.addConstraint(Sketcher.Constraint("Equal", 1, 5))
sketch3.addConstraint(Sketcher.Constraint("Equal", 6, 17))
sketch3.addConstraint(Sketcher.Constraint("Equal", 4, 21))
sketch3.addConstraint(Sketcher.Constraint("DistanceX", 3, 2, 3, 1, Q("60 mm")))
sketch3.addConstraint(Sketcher.Constraint("DistanceX", 1, 2, -1, 1, Q("10 mm")))
sketch3.addConstraint(Sketcher.Constraint("DistanceY", 2, 1, 2, 2, Q("2.375 mm")))
sketch3.addConstraint(Sketcher.Constraint("DistanceY", 9, 2, 9, 1, Q("29.1 mm")))
sketch3.addConstraint(Sketcher.Constraint("DistanceX", 7, 1, 7, 2, Q("65.25 mm")))
sketch3.addConstraint(Sketcher.Constraint("DistanceY", 3, 2, 6, 2, Q("5.2 mm")))
sketch3.addConstraint(Sketcher.Constraint("DistanceY", 8, 2, 0, 2, Q("10.5 mm")))
sketch3.addConstraint(Sketcher.Constraint("DistanceY", 16, 2, 9, 2, Q("10.5 mm")))
sketch3.addConstraint(Sketcher.Constraint("DistanceY", 0, 2, -1, 1, Q("14.95 mm")))
pad3 = body.newObject("PartDesign::Pad", "Pad002")
pad3.Profile = sketch3
pad3.Length = 10
pad3.Reversed = True

# Sketch on XZ plane
sketch4 = body.newObject("Sketcher::SketchObject", "Sketch003")
sketch4.AttachmentSupport = (doc.getObject("XZ_Plane"), [""])
sketch4.MapMode = "FlatFace"
sketch4.AttachmentOffset = App.Placement(App.Vector(0, 0, -10), App.Rotation())
sketch4.addGeometry(Part.LineSegment(App.Vector(-7.375, -39.5, 0), App.Vector(-7.375, -40.5, 0)), False)
sketch4.addGeometry(Part.LineSegment(App.Vector(-7.375, -40.5, 0), App.Vector(-84.1767, -40.5, 0)), False)
sketch4.addGeometry(Part.LineSegment(App.Vector(-84.1767, -40.5, 0), App.Vector(-84.1767, -39.5, 0)), False)
sketch4.addGeometry(Part.LineSegment(App.Vector(-84.1767, -39.5, 0), App.Vector(-7.375, -39.5, 0)), False)
sketch4.addConstraint(Sketcher.Constraint("Coincident", 0, 2, 1, 1))
sketch4.addConstraint(Sketcher.Constraint("Coincident", 1, 2, 2, 1))
sketch4.addConstraint(Sketcher.Constraint("Coincident", 2, 2, 3, 1))
sketch4.addConstraint(Sketcher.Constraint("Coincident", 3, 2, 0, 1))
sketch4.addConstraint(Sketcher.Constraint("Vertical", 0))
sketch4.addConstraint(Sketcher.Constraint("Horizontal", 1))
sketch4.addConstraint(Sketcher.Constraint("Vertical", 2))
sketch4.addConstraint(Sketcher.Constraint("Horizontal", 3))
sketch4.addConstraint(Sketcher.Constraint("DistanceY", 0, 2, 0, 1, Q("1 mm")))
sketch4.addConstraint(Sketcher.Constraint("DistanceY", 0, 2, -1, 1, Q("40.5 mm")))
sketch4.addConstraint(Sketcher.Constraint("DistanceX", 1, 2, 1, 1, Q("76.8017 mm")))
sketch4.addConstraint(Sketcher.Constraint("DistanceX", 0, 2, -1, 1, Q("7.375 mm")))
pocket1 = body.newObject("PartDesign::Pocket", "Pocket")
pocket1.Profile = sketch4
pocket1.Length = 2
pocket1.Reversed = True

doc.recompute()
